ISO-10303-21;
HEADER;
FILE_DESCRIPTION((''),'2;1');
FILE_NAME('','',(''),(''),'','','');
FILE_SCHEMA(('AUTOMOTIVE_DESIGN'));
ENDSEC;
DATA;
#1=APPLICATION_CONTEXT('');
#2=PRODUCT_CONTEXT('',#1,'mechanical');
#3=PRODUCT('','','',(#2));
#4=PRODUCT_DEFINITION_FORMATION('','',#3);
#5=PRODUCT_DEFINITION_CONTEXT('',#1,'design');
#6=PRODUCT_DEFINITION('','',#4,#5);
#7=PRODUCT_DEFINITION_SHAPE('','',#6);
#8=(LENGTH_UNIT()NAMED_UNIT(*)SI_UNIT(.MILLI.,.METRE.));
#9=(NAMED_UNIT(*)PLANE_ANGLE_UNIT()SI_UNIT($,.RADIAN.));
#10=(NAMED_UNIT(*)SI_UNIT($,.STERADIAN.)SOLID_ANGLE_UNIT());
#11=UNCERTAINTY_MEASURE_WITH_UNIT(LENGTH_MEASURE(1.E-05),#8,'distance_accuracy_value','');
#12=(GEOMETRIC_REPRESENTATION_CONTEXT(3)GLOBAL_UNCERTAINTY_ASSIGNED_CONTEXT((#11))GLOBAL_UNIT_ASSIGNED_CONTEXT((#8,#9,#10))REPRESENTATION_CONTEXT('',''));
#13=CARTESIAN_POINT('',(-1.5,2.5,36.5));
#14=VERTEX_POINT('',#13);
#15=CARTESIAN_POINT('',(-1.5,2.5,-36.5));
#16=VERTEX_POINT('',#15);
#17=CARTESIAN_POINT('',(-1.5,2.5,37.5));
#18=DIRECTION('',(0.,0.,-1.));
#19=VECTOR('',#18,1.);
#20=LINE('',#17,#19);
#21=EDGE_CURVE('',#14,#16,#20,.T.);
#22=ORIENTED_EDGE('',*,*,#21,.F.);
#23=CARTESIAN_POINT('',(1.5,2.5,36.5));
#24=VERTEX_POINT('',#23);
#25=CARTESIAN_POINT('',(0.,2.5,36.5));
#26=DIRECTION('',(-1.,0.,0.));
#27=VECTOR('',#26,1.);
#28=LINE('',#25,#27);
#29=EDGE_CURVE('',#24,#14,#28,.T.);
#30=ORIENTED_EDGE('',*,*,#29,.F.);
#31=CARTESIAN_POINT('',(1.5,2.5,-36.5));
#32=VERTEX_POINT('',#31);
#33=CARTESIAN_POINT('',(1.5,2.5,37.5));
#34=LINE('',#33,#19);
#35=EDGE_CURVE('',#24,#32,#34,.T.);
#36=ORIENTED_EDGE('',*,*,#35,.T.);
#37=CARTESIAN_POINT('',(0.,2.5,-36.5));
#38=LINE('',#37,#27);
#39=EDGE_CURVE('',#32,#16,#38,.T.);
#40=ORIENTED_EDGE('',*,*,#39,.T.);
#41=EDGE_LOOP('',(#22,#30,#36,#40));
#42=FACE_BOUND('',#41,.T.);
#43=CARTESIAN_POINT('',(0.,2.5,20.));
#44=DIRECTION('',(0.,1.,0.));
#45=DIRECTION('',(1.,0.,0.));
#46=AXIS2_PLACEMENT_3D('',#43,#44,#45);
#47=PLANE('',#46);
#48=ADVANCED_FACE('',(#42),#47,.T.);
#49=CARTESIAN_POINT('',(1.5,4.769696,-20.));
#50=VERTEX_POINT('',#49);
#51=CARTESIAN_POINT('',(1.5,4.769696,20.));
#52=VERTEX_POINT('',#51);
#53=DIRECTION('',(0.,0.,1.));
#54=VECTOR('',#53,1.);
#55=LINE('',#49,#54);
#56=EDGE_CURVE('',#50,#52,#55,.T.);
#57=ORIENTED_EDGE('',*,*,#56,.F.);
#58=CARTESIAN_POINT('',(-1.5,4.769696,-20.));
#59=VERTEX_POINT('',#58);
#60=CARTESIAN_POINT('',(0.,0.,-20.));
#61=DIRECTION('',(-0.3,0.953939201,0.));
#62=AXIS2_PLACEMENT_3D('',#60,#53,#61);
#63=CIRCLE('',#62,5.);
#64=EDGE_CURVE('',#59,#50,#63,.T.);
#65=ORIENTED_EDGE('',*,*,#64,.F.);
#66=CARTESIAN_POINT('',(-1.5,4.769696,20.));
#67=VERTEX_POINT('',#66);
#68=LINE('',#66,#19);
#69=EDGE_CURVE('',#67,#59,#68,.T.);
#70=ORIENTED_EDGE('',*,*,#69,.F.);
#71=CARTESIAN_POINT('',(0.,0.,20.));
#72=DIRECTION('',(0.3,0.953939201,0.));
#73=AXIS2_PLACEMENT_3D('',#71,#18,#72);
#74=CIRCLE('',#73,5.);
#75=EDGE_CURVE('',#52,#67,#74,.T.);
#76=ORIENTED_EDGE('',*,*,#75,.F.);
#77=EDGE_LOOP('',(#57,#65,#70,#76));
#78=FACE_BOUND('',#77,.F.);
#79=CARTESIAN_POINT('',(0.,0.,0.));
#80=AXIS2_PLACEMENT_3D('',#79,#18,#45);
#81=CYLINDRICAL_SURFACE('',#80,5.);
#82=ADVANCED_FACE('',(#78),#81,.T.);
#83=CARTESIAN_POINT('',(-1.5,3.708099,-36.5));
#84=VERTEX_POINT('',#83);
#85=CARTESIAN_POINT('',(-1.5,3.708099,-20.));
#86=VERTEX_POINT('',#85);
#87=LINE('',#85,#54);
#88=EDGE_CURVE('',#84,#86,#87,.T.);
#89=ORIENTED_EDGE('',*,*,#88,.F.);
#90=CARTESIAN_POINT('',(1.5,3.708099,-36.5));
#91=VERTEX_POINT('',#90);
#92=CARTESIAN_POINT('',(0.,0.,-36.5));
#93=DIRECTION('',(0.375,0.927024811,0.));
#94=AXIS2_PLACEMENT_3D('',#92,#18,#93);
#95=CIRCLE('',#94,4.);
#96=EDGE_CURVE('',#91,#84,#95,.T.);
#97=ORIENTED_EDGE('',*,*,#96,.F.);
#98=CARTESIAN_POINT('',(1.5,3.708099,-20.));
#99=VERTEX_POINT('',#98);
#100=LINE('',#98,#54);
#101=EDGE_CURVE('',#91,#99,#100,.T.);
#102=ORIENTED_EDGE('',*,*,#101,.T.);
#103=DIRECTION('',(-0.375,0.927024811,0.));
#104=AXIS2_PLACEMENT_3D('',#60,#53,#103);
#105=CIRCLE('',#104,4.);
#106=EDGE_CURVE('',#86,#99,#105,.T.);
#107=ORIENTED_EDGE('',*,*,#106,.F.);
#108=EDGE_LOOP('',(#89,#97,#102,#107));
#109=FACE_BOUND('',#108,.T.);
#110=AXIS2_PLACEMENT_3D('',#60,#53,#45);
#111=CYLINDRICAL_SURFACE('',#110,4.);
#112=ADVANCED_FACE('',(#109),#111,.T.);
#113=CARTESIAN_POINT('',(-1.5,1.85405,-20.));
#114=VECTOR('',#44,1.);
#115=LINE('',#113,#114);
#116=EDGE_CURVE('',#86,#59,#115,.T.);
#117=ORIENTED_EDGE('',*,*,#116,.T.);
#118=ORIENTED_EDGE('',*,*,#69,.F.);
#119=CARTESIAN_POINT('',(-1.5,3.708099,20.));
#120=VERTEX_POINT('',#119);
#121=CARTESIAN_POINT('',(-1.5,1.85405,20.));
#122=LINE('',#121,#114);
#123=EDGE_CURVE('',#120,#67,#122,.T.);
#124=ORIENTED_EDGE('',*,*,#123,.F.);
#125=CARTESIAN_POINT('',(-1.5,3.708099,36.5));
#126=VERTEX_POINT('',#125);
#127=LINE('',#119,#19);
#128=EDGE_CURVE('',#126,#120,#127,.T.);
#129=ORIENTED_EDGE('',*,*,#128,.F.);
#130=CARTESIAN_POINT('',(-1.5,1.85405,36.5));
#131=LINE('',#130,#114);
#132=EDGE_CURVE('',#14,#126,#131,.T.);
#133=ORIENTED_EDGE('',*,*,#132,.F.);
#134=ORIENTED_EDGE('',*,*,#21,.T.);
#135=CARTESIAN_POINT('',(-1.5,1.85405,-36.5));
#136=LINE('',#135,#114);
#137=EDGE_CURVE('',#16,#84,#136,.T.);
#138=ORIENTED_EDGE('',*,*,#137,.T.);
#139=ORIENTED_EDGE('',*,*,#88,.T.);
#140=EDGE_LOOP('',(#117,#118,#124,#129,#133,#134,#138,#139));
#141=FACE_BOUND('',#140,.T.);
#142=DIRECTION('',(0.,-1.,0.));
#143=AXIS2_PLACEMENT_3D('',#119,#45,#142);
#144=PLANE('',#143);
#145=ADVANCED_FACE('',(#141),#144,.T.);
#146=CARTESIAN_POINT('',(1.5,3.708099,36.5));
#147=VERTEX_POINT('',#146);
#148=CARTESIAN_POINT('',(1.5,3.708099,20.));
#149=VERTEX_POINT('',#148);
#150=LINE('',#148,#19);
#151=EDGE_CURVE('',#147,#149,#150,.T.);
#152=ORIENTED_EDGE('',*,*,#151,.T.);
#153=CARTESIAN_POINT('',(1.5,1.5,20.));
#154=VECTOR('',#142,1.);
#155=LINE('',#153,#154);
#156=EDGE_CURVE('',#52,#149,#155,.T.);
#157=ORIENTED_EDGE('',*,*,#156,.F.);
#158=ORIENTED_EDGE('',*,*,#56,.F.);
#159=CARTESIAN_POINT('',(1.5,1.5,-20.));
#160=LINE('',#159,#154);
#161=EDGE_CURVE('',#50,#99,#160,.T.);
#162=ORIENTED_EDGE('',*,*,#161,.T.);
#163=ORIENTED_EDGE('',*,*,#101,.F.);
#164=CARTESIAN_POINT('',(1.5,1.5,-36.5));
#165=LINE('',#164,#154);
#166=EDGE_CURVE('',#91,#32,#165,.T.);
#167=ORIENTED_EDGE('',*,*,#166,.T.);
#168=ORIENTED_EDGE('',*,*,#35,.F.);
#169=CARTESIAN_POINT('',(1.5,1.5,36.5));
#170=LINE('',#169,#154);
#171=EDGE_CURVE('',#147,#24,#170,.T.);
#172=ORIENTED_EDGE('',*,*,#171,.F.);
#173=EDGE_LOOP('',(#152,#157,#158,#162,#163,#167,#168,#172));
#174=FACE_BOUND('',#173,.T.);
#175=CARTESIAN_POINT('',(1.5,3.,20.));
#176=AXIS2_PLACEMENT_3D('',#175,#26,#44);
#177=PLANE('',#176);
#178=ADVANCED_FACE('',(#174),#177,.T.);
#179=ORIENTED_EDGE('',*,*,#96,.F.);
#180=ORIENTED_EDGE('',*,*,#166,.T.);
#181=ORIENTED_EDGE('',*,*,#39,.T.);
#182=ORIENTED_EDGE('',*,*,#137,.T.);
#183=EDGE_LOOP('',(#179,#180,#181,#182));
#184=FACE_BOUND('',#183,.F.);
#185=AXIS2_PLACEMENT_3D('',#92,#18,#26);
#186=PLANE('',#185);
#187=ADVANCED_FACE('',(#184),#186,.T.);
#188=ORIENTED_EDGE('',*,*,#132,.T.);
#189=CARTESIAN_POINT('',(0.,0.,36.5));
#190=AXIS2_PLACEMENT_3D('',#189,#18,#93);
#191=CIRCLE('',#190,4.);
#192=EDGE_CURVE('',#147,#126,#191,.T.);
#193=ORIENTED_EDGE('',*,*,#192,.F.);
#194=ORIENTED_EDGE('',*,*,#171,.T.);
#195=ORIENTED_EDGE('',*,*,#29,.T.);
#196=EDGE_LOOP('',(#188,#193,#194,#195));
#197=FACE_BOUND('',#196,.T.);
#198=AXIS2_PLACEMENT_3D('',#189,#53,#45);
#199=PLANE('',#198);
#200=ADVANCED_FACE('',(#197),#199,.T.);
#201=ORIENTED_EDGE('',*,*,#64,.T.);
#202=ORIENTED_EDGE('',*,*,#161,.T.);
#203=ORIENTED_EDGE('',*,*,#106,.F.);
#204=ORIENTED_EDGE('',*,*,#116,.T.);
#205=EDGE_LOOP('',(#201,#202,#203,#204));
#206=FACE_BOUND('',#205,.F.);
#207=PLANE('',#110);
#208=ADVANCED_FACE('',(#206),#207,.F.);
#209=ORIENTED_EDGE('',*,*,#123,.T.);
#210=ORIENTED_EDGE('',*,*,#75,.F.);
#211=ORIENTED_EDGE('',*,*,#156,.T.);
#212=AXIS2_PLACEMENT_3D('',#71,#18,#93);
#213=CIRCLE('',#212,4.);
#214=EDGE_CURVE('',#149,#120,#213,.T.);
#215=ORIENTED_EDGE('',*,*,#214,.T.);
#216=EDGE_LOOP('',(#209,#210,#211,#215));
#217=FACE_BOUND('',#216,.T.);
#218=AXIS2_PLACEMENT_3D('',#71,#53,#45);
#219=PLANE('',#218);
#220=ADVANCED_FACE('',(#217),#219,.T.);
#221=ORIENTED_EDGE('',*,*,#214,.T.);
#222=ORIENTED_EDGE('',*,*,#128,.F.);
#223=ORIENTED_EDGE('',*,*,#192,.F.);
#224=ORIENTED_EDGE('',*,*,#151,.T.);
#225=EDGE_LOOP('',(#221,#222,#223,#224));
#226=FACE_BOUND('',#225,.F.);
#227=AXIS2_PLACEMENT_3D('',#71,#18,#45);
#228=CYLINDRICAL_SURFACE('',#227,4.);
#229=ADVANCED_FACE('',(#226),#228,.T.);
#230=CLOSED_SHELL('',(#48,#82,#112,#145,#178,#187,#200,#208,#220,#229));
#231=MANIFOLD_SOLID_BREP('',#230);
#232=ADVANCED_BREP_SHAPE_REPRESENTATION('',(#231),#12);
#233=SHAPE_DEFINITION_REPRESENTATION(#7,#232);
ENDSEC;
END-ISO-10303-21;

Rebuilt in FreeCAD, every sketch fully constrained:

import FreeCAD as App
import Part
import Sketcher
Q = App.Units.Quantity

doc = App.newDocument("Part")
params = doc.addObject("Spreadsheet::Sheet", "Params")
for row, (alias, value) in enumerate([
    ("sketch1_diameter", "10 mm"),
    ("pad1_length", "40 mm"),
    ("sketch2_diameter", "8 mm"),
    ("pad2_length", "16.5 mm"),
    ("sketch3_width", "3 mm"),
], start=1):
    params.set(f"A{row}", alias)
    params.set(f"B{row}", "=" + value)
    params.setAlias(f"B{row}", alias)

body = doc.addObject("PartDesign::Body", "Body")

# Sketch on XY plane
sketch1 = doc.addObject("Sketcher::SketchObject", "Sketch")
body.addObject(sketch1)
sketch1.AttachmentSupport = (doc.XY_Plane, [""])
sketch1.MapMode = "FlatFace"
sketch1.addGeometry(Part.Circle(App.Vector(0, 0, 0), App.Vector(0, 0, 1), 5), False)
sketch1.addConstraint([
    Sketcher.Constraint("Coincident", 0, 3, -1, 1),
    Sketcher.Constraint("Diameter", 0, Q("10 mm")),
])
sketch1.setExpression("Constraints[1]", "Params.sketch1_diameter")
pad1 = doc.addObject("PartDesign::Pad", "Pad")
body.addObject(pad1)
pad1.Profile = sketch1
pad1.setExpression("Length", "Params.pad1_length")
pad1.Midplane = True

# Sketch on XY plane
sketch2 = doc.addObject("Sketcher::SketchObject", "Sketch001")
body.addObject(sketch2)
sketch2.AttachmentSupport = (doc.XY_Plane, [""])
sketch2.MapMode = "FlatFace"
sketch2.AttachmentOffset = App.Placement(App.Vector(0, 0, 20), App.Rotation())
sketch2.addGeometry(Part.Circle(App.Vector(0, 0, 0), App.Vector(0, 0, 1), 4), False)
sketch2.addConstraint([
    Sketcher.Constraint("Coincident", 0, 3, -1, 1),
    Sketcher.Constraint("Diameter", 0, Q("8 mm")),
])
sketch2.setExpression("Constraints[1]", "Params.sketch2_diameter")
pad2 = doc.addObject("PartDesign::Pad", "Pad001")
body.addObject(pad2)
pad2.Profile = sketch2
pad2.setExpression("Length", "Params.pad2_length")
doc.recompute()

mirrored = doc.addObject("PartDesign::Mirrored", "Mirrored")
body.addObject(mirrored)
mirrored.Originals = [pad2]
mirrored.MirrorPlane = (doc.XY_Plane, [""])
body.Tip = mirrored

# Sketch on XY plane
sketch3 = doc.addObject("Sketcher::SketchObject", "Sketch002")
body.addObject(sketch3)
sketch3.AttachmentSupport = (doc.XY_Plane, [""])
sketch3.MapMode = "FlatFace"
sketch3.AttachmentOffset = App.Placement(App.Vector(0, 0, 20), App.Rotation())
sketch3.addGeometry([
    Part.LineSegment(App.Vector(1.5, 5.5, 0), App.Vector(-1.5, 5.5, 0)),
    Part.LineSegment(App.Vector(-1.5, 5.5, 0), App.Vector(-1.5, 2.5, 0)),
    Part.LineSegment(App.Vector(-1.5, 2.5, 0), App.Vector(1.5, 2.5, 0)),
    Part.LineSegment(App.Vector(1.5, 2.5, 0), App.Vector(1.5, 5.5, 0)),
], False)
sketch3.addConstraint([
    Sketcher.Constraint("Coincident", 0, 2, 1, 1),
    Sketcher.Constraint("Coincident", 1, 2, 2, 1),
    Sketcher.Constraint("Coincident", 2, 2, 3, 1),
    Sketcher.Constraint("Coincident", 3, 2, 0, 1),
    Sketcher.Constraint("Horizontal", 0),
    Sketcher.Constraint("Vertical", 1),
    Sketcher.Constraint("Horizontal", 2),
    Sketcher.Constraint("Vertical", 3),
    Sketcher.Constraint("Equal", 2, 1),
    Sketcher.Constraint("DistanceX", 0, 2, 0, 1, Q("3 mm")),
    Sketcher.Constraint("DistanceX", 0, 2, -1, 1, Q("1.5 mm")),
    Sketcher.Constraint("DistanceY", -1, 1, 0, 2, Q("5.5 mm")),
])
sketch3.setExpression("Constraints[9]", "Params.sketch3_width")
pocket1 = doc.addObject("PartDesign::Pocket", "Pocket")
body.addObject(pocket1)
pocket1.Profile = sketch3
pocket1.Type = "ThroughAll"
pocket1.Midplane = True

doc.recompute()
